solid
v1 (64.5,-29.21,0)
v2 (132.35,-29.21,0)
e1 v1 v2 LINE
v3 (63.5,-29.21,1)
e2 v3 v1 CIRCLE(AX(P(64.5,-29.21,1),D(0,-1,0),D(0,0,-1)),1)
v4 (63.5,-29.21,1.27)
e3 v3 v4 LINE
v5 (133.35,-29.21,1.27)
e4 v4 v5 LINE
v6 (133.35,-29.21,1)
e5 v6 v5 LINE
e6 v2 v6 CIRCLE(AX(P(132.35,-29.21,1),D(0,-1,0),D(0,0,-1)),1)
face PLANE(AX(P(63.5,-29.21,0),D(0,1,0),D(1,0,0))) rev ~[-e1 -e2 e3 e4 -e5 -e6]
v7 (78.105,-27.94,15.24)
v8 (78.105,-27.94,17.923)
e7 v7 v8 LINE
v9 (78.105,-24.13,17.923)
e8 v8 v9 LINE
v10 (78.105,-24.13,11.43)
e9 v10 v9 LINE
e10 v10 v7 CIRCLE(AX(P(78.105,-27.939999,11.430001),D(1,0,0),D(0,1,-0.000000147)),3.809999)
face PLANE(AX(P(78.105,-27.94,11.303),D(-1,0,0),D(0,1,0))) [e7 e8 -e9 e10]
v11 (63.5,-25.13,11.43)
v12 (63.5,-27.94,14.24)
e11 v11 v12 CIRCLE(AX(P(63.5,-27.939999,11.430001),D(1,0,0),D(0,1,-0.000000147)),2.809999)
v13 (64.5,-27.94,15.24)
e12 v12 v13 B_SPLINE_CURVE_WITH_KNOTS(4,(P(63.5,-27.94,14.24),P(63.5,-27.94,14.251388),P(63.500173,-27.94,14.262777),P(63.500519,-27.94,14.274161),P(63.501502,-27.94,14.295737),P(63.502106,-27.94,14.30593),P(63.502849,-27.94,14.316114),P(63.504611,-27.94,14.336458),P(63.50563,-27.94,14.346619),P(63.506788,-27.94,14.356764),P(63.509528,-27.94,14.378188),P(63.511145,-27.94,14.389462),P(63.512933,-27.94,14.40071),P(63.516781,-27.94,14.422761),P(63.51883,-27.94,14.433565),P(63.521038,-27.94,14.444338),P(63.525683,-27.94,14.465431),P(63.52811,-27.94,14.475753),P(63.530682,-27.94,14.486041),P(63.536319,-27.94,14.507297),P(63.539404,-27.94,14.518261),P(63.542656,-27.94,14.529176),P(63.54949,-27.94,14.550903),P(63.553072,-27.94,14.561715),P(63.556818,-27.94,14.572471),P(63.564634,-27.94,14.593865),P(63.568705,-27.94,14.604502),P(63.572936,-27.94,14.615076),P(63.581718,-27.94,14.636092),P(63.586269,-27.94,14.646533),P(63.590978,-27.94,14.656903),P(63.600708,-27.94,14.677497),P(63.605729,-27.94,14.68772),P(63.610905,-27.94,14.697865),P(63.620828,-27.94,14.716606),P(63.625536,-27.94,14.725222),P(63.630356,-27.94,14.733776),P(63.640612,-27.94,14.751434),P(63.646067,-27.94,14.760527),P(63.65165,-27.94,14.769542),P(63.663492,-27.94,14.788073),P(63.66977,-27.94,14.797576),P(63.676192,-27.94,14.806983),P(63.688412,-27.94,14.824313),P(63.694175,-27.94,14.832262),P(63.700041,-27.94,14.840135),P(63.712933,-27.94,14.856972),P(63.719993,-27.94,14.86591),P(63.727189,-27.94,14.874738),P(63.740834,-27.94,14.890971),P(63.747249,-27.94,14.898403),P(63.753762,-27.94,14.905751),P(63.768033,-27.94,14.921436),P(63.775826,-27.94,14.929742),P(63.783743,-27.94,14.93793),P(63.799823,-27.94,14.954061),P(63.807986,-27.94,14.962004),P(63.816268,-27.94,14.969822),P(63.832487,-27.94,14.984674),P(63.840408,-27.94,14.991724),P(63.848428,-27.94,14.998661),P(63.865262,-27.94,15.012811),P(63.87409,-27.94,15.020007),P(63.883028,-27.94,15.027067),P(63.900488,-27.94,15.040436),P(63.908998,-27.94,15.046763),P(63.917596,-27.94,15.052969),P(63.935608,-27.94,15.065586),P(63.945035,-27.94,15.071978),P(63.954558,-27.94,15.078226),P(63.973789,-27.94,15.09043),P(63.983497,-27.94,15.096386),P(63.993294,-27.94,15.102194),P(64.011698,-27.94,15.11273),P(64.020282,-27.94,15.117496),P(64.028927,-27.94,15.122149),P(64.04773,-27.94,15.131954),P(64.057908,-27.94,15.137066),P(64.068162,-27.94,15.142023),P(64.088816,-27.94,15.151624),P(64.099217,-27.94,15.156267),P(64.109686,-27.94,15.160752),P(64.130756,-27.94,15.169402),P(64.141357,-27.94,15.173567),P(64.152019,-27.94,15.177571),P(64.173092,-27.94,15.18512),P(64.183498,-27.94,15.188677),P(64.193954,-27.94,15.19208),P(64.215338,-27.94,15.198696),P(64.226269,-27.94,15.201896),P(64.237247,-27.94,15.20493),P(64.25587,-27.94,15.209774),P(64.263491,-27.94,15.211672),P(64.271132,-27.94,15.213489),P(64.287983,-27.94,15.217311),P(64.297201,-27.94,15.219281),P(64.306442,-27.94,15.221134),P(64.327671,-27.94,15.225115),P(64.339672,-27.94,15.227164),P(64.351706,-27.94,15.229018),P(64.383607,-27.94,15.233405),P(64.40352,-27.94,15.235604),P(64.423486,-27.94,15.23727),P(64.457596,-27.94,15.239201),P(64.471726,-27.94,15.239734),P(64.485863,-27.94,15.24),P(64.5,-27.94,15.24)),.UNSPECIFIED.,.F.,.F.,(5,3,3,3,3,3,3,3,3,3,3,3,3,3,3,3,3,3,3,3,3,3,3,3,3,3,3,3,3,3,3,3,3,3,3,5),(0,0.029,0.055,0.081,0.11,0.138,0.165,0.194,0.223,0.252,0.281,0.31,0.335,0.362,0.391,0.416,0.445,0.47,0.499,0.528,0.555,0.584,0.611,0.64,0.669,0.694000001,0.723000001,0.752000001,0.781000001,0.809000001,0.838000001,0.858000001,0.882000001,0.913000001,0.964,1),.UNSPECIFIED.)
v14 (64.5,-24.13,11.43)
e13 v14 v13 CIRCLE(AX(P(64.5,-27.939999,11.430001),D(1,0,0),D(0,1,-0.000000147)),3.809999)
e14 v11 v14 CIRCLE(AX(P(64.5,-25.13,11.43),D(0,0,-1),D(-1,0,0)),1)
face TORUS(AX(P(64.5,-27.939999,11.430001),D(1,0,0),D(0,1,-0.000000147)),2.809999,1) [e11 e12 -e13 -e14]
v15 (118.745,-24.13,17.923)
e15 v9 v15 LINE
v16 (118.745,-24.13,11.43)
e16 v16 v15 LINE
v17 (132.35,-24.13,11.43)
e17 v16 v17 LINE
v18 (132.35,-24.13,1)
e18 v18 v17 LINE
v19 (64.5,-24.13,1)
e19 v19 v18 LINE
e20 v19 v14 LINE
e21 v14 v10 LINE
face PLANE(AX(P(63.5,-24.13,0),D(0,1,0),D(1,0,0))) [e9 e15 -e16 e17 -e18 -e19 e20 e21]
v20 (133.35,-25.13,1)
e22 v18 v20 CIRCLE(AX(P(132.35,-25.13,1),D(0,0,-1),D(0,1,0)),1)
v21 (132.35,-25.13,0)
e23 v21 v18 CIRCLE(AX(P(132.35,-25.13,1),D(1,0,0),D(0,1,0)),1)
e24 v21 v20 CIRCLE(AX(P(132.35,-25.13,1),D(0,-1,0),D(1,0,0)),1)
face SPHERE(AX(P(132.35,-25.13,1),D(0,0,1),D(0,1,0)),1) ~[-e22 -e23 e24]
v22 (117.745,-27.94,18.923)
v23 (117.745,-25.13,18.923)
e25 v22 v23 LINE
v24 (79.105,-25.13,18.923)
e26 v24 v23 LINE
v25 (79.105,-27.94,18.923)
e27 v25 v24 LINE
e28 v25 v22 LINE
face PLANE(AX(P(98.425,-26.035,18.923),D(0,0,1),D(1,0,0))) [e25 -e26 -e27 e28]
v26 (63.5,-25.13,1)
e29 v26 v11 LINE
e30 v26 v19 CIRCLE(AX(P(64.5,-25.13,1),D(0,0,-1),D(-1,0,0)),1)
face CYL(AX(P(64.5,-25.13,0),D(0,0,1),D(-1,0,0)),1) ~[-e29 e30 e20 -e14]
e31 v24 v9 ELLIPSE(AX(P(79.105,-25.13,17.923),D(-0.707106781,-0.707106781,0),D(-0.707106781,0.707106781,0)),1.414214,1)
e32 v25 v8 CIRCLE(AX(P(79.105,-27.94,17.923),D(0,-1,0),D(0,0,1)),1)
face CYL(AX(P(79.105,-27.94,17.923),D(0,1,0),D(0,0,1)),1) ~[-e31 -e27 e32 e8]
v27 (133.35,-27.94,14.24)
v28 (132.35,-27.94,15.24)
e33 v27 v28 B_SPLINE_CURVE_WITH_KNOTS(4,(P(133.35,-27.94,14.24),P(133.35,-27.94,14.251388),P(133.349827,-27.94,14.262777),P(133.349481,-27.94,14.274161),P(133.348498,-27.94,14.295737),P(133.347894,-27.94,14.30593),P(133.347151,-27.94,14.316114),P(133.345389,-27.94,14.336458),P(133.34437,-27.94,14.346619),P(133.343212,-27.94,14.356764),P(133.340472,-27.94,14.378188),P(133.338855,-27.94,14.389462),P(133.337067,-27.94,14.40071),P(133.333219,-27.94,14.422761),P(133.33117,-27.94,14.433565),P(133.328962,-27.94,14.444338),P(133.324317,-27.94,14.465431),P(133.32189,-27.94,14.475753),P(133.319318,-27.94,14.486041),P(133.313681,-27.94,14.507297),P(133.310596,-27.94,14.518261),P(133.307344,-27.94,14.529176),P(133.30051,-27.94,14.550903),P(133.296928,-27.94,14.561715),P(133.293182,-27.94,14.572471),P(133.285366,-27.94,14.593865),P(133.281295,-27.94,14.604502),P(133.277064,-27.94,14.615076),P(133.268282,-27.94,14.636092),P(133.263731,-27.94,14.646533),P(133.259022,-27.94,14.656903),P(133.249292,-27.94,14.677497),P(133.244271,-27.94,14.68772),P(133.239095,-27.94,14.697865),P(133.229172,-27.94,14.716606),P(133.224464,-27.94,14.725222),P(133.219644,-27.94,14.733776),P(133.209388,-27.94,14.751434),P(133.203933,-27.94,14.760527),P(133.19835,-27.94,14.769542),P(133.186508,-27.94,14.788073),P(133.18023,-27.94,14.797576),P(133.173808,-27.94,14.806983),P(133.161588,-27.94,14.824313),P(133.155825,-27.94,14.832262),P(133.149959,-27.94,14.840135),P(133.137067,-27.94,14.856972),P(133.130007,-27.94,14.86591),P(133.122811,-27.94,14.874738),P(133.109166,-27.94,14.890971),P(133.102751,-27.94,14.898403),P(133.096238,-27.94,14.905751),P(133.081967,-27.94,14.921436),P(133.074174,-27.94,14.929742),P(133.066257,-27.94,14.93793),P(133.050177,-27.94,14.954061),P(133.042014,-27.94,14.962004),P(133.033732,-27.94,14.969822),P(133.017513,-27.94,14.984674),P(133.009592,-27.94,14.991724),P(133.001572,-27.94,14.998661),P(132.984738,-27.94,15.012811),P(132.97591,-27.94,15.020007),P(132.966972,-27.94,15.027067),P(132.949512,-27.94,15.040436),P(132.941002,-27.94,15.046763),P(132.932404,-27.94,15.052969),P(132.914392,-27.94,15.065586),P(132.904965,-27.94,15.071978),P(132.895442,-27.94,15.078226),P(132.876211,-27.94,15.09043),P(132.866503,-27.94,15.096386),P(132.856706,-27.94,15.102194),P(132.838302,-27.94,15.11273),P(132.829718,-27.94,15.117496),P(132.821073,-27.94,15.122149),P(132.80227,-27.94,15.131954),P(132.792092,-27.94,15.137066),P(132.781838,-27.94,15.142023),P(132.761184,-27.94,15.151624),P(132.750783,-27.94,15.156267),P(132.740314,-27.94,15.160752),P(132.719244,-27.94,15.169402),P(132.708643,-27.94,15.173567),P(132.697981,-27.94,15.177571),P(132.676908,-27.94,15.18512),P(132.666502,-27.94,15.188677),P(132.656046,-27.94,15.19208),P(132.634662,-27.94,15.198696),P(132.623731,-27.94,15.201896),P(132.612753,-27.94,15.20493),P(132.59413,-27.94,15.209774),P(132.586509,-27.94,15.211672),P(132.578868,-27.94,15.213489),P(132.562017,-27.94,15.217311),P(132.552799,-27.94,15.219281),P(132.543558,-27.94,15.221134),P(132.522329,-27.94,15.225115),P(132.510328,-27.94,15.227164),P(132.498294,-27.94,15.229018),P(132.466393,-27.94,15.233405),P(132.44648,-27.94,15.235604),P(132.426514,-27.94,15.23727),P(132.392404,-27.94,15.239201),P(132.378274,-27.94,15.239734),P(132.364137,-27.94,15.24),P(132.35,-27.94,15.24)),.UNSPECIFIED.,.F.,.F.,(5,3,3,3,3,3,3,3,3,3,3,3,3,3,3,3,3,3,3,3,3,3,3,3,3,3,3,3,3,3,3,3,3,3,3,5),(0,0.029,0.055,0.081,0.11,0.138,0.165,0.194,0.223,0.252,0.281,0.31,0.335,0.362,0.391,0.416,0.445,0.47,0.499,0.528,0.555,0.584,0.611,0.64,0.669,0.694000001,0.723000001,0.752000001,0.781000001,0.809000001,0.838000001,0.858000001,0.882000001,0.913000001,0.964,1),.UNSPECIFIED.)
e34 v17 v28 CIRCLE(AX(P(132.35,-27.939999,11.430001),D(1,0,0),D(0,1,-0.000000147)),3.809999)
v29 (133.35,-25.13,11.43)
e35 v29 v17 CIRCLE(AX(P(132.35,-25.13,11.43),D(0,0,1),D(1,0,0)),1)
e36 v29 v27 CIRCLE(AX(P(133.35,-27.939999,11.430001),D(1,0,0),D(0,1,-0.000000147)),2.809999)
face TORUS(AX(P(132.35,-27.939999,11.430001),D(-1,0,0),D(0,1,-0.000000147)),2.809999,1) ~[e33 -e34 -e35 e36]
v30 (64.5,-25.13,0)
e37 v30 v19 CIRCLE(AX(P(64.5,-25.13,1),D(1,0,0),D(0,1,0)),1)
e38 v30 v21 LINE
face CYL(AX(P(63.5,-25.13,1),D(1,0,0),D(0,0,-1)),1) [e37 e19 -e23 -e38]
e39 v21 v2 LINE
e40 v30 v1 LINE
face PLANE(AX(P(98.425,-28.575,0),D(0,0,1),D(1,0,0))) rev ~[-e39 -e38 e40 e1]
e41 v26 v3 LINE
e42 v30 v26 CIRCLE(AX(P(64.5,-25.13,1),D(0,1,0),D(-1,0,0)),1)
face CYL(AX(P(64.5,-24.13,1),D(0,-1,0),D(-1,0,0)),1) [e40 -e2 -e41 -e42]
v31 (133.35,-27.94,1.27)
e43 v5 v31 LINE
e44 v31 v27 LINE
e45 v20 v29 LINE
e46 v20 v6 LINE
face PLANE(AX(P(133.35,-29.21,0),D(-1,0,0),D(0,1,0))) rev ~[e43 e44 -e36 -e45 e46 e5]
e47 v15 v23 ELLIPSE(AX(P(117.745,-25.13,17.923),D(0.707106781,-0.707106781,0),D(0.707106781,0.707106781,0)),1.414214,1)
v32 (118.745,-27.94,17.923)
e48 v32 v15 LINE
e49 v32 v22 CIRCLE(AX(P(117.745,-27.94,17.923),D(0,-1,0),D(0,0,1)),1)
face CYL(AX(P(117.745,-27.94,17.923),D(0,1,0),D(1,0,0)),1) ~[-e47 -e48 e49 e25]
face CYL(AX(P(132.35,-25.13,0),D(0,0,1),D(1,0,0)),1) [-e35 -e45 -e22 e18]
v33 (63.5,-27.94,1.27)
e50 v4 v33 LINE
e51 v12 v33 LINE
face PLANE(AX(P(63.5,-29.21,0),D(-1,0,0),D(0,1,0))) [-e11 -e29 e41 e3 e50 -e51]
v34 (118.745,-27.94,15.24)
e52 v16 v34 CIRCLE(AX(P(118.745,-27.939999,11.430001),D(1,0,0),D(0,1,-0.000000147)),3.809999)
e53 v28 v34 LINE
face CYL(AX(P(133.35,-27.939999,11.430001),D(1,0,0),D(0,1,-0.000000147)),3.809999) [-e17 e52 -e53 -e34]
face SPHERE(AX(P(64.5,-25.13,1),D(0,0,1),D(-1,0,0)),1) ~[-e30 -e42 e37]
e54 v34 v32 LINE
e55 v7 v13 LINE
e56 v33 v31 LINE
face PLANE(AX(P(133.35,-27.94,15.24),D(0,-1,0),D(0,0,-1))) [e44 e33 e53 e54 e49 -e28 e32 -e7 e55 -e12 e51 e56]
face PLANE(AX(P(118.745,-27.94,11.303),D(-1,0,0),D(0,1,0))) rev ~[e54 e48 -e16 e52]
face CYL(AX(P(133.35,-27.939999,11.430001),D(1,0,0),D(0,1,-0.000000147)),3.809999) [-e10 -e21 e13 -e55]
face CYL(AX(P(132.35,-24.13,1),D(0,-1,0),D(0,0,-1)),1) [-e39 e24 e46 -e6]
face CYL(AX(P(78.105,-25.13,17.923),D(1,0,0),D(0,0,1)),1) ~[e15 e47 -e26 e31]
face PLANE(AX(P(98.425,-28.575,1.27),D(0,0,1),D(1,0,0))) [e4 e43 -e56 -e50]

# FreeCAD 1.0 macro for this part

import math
import FreeCAD as App
import Part
import Sketcher

V = App.Vector
Q = App.Units.Quantity


def edges_at(feature, points):
    """Names of the edges that pass closest to the given points."""
    edges = feature.Shape.Edges
    near = lambda p: min(range(len(edges)), key=lambda i: edges[i].distToShape(Part.Vertex(*p))[0])
    return sorted({f"Edge{near(p) + 1}" for p in points})


def add_polygon(sketch, points):
    """Adds a closed chain of lines whose ends are joined by coincident constraints."""
    first, n = sketch.GeometryCount, len(points)
    for a, b in zip(points, points[1:] + points[:1]):
        sketch.addGeometry(Part.LineSegment(App.Vector(*a, 0), App.Vector(*b, 0)), False)
    for i in range(n):
        sketch.addConstraint(Sketcher.Constraint("Coincident", first + i, 2, first + (i + 1) % n, 1))

doc = App.newDocument("Part")
body = doc.addObject("PartDesign::Body", "Body")

# Sketch on YZ plane
sketch1 = body.newObject("Sketcher::SketchObject", "Sketch")
sketch1.AttachmentSupport = (doc.getObject("YZ_Plane"), [""])
sketch1.MapMode = "FlatFace"
sketch1.AttachmentOffset = App.Placement(V(0, 0, 2.75 * 25.4), App.Rotation())
sketch1.addGeometry([
    Part.ArcOfCircle(Part.Circle(V(0, 11.4, 0), V(0, 0, 1), 3.8), math.radians(0), math.radians(90)),
    Part.LineSegment(V(0, 15.2, 0), V(0, 11.4, 0)),
    Part.LineSegment(V(0, 11.4, 0), V(3.8, 11.4, 0)),
], False)
sketch1.addConstraint([
    Sketcher.Constraint("Coincident", 0, 2, 1, 1),
    Sketcher.Constraint("Coincident", 1, 2, 2, 1),
    Sketcher.Constraint("Coincident", 2, 2, 0, 1),
    Sketcher.Constraint("Vertical", 1),
    Sketcher.Constraint("Horizontal", 2),
    Sketcher.Constraint("Coincident", 1, 2, 0, 3),
    Sketcher.Constraint("PointOnObject", 0, 3, -2),
    Sketcher.Constraint("Radius", 0, Q("0.15 in")),
    Sketcher.Constraint("DistanceY", -1, 1, 0, 2, Q("0.6 in")),
])
pad1 = body.newObject("PartDesign::Pad", "Pad")
pad1.Profile = sketch1
pad1.Length = Q("2.75 in")
pad1.Reversed = True
body2 = doc.addObject("PartDesign::Body", "Body001")

# Sketch on XY plane
sketch2 = body2.newObject("Sketcher::SketchObject", "Sketch001")
sketch2.AttachmentSupport = (doc.getObject("XY_Plane001"), [""])
sketch2.MapMode = "FlatFace"
sketch2.AttachmentOffset = App.Placement(V(0, 0, 0.445 * 25.4), App.Rotation())
add_polygon(sketch2, [(14.6, 3.8), (14.6, 0), (55.2, 0), (55.2, 3.8)])  # lines 0-3
sketch2.addConstraint([
    Sketcher.Constraint("Vertical", 0),
    Sketcher.Constraint("Horizontal", 1),
    Sketcher.Constraint("Vertical", 2),
    Sketcher.Constraint("Horizontal", 3),
    Sketcher.Constraint("PointOnObject", 0, 2, -1),
    Sketcher.Constraint("DistanceX", 1, 1, 1, 2, Q("1.6 in")),
    Sketcher.Constraint("DistanceY", 0, 2, 0, 1, Q("0.15 in")),
    Sketcher.Constraint("DistanceX", -1, 1, 0, 2, Q("0.575 in")),
])
pad2 = body2.newObject("PartDesign::Pad", "Pad001")
pad2.Profile = sketch2
pad2.Length = Q("0.3 in")
body3 = doc.addObject("PartDesign::Body", "Body002")

# Sketch on XY plane
sketch3 = body3.newObject("Sketcher::SketchObject", "Sketch002")
sketch3.AttachmentSupport = (doc.getObject("XY_Plane002"), [""])
sketch3.MapMode = "FlatFace"
add_polygon(sketch3, [(0, 0), (0, -1.3), (69.8, -1.3), (69.8, 0)])  # lines 0-3
sketch3.addConstraint([
    Sketcher.Constraint("Vertical", 0),
    Sketcher.Constraint("Horizontal", 1),
    Sketcher.Constraint("Vertical", 2),
    Sketcher.Constraint("Horizontal", 3),
    Sketcher.Constraint("Coincident", 3, 2, -1, 1),
    Sketcher.Constraint("DistanceX", 1, 1, 1, 2, Q("2.75 in")),
    Sketcher.Constraint("DistanceY", 0, 2, 0, 1, Q("0.05 in")),
])
pad3 = body3.newObject("PartDesign::Pad", "Pad002")
pad3.Profile = sketch3
pad3.Length = Q("0.05 in")
body4 = doc.addObject("PartDesign::Body", "Body003")

# Sketch on XY plane
sketch4 = body4.newObject("Sketcher::SketchObject", "Sketch003")
sketch4.AttachmentSupport = (doc.getObject("XY_Plane003"), [""])
sketch4.MapMode = "FlatFace"
add_polygon(sketch4, [(0, 3.8), (0, 0), (69.8, 0), (69.8, 3.8)])  # lines 0-3
sketch4.addConstraint([
    Sketcher.Constraint("Vertical", 0),
    Sketcher.Constraint("Horizontal", 1),
    Sketcher.Constraint("Vertical", 2),
    Sketcher.Constraint("Horizontal", 3),
    Sketcher.Constraint("Coincident", 0, 2, -1, 1),
    Sketcher.Constraint("DistanceX", 1, 1, 1, 2, Q("2.75 in")),
    Sketcher.Constraint("DistanceY", 0, 2, 0, 1, Q("0.15 in")),
])
pad4 = body4.newObject("PartDesign::Pad", "Pad003")
pad4.Profile = sketch4
pad4.Length = Q("0.45 in")
doc.recompute()

boolean = body4.newObject("PartDesign::Boolean", "Boolean")
boolean.Type = "Fuse"
boolean.addObjects([body])
doc.recompute()

boolean2 = body4.newObject("PartDesign::Boolean", "Boolean001")
boolean2.Type = "Fuse"
boolean2.addObjects([body2])
doc.recompute()

boolean3 = body4.newObject("PartDesign::Boolean", "Boolean002")
boolean3.Type = "Fuse"
boolean3.addObjects([body3])
doc.recompute()

fillet = body4.newObject("PartDesign::Fillet", "Fillet")
fillet.Base = (boolean3, edges_at(boolean3, [
    (0, 3.81, 5.715),
    (0, 1.27, 0),
    (0, 1.27, 0),
    (0, 2.694, 14.124),
    (69.85, 3.81, 5.715),
    (34.925, 3.81, 0),
    (69.85, 1.27, 0),
    (69.85, 1.27, 0),
    (69.85, 2.694, 14.124),
    (14.605, 1.905, 18.923),
    (55.245, 1.905, 18.923),
    (34.925, 3.81, 18.923),
]))
fillet.Radius = 1
body5 = doc.addObject("PartDesign::Body", "Body004")
doc.recompute()

body4.Placement = App.Placement(V(63.5, -27.94, 0), App.Rotation(V(0, 0, 1), 0))
boolean4 = body5.newObject("PartDesign::Boolean", "Boolean003")
boolean4.Type = "Fuse"
boolean4.addObjects([body4])

doc.recompute()
